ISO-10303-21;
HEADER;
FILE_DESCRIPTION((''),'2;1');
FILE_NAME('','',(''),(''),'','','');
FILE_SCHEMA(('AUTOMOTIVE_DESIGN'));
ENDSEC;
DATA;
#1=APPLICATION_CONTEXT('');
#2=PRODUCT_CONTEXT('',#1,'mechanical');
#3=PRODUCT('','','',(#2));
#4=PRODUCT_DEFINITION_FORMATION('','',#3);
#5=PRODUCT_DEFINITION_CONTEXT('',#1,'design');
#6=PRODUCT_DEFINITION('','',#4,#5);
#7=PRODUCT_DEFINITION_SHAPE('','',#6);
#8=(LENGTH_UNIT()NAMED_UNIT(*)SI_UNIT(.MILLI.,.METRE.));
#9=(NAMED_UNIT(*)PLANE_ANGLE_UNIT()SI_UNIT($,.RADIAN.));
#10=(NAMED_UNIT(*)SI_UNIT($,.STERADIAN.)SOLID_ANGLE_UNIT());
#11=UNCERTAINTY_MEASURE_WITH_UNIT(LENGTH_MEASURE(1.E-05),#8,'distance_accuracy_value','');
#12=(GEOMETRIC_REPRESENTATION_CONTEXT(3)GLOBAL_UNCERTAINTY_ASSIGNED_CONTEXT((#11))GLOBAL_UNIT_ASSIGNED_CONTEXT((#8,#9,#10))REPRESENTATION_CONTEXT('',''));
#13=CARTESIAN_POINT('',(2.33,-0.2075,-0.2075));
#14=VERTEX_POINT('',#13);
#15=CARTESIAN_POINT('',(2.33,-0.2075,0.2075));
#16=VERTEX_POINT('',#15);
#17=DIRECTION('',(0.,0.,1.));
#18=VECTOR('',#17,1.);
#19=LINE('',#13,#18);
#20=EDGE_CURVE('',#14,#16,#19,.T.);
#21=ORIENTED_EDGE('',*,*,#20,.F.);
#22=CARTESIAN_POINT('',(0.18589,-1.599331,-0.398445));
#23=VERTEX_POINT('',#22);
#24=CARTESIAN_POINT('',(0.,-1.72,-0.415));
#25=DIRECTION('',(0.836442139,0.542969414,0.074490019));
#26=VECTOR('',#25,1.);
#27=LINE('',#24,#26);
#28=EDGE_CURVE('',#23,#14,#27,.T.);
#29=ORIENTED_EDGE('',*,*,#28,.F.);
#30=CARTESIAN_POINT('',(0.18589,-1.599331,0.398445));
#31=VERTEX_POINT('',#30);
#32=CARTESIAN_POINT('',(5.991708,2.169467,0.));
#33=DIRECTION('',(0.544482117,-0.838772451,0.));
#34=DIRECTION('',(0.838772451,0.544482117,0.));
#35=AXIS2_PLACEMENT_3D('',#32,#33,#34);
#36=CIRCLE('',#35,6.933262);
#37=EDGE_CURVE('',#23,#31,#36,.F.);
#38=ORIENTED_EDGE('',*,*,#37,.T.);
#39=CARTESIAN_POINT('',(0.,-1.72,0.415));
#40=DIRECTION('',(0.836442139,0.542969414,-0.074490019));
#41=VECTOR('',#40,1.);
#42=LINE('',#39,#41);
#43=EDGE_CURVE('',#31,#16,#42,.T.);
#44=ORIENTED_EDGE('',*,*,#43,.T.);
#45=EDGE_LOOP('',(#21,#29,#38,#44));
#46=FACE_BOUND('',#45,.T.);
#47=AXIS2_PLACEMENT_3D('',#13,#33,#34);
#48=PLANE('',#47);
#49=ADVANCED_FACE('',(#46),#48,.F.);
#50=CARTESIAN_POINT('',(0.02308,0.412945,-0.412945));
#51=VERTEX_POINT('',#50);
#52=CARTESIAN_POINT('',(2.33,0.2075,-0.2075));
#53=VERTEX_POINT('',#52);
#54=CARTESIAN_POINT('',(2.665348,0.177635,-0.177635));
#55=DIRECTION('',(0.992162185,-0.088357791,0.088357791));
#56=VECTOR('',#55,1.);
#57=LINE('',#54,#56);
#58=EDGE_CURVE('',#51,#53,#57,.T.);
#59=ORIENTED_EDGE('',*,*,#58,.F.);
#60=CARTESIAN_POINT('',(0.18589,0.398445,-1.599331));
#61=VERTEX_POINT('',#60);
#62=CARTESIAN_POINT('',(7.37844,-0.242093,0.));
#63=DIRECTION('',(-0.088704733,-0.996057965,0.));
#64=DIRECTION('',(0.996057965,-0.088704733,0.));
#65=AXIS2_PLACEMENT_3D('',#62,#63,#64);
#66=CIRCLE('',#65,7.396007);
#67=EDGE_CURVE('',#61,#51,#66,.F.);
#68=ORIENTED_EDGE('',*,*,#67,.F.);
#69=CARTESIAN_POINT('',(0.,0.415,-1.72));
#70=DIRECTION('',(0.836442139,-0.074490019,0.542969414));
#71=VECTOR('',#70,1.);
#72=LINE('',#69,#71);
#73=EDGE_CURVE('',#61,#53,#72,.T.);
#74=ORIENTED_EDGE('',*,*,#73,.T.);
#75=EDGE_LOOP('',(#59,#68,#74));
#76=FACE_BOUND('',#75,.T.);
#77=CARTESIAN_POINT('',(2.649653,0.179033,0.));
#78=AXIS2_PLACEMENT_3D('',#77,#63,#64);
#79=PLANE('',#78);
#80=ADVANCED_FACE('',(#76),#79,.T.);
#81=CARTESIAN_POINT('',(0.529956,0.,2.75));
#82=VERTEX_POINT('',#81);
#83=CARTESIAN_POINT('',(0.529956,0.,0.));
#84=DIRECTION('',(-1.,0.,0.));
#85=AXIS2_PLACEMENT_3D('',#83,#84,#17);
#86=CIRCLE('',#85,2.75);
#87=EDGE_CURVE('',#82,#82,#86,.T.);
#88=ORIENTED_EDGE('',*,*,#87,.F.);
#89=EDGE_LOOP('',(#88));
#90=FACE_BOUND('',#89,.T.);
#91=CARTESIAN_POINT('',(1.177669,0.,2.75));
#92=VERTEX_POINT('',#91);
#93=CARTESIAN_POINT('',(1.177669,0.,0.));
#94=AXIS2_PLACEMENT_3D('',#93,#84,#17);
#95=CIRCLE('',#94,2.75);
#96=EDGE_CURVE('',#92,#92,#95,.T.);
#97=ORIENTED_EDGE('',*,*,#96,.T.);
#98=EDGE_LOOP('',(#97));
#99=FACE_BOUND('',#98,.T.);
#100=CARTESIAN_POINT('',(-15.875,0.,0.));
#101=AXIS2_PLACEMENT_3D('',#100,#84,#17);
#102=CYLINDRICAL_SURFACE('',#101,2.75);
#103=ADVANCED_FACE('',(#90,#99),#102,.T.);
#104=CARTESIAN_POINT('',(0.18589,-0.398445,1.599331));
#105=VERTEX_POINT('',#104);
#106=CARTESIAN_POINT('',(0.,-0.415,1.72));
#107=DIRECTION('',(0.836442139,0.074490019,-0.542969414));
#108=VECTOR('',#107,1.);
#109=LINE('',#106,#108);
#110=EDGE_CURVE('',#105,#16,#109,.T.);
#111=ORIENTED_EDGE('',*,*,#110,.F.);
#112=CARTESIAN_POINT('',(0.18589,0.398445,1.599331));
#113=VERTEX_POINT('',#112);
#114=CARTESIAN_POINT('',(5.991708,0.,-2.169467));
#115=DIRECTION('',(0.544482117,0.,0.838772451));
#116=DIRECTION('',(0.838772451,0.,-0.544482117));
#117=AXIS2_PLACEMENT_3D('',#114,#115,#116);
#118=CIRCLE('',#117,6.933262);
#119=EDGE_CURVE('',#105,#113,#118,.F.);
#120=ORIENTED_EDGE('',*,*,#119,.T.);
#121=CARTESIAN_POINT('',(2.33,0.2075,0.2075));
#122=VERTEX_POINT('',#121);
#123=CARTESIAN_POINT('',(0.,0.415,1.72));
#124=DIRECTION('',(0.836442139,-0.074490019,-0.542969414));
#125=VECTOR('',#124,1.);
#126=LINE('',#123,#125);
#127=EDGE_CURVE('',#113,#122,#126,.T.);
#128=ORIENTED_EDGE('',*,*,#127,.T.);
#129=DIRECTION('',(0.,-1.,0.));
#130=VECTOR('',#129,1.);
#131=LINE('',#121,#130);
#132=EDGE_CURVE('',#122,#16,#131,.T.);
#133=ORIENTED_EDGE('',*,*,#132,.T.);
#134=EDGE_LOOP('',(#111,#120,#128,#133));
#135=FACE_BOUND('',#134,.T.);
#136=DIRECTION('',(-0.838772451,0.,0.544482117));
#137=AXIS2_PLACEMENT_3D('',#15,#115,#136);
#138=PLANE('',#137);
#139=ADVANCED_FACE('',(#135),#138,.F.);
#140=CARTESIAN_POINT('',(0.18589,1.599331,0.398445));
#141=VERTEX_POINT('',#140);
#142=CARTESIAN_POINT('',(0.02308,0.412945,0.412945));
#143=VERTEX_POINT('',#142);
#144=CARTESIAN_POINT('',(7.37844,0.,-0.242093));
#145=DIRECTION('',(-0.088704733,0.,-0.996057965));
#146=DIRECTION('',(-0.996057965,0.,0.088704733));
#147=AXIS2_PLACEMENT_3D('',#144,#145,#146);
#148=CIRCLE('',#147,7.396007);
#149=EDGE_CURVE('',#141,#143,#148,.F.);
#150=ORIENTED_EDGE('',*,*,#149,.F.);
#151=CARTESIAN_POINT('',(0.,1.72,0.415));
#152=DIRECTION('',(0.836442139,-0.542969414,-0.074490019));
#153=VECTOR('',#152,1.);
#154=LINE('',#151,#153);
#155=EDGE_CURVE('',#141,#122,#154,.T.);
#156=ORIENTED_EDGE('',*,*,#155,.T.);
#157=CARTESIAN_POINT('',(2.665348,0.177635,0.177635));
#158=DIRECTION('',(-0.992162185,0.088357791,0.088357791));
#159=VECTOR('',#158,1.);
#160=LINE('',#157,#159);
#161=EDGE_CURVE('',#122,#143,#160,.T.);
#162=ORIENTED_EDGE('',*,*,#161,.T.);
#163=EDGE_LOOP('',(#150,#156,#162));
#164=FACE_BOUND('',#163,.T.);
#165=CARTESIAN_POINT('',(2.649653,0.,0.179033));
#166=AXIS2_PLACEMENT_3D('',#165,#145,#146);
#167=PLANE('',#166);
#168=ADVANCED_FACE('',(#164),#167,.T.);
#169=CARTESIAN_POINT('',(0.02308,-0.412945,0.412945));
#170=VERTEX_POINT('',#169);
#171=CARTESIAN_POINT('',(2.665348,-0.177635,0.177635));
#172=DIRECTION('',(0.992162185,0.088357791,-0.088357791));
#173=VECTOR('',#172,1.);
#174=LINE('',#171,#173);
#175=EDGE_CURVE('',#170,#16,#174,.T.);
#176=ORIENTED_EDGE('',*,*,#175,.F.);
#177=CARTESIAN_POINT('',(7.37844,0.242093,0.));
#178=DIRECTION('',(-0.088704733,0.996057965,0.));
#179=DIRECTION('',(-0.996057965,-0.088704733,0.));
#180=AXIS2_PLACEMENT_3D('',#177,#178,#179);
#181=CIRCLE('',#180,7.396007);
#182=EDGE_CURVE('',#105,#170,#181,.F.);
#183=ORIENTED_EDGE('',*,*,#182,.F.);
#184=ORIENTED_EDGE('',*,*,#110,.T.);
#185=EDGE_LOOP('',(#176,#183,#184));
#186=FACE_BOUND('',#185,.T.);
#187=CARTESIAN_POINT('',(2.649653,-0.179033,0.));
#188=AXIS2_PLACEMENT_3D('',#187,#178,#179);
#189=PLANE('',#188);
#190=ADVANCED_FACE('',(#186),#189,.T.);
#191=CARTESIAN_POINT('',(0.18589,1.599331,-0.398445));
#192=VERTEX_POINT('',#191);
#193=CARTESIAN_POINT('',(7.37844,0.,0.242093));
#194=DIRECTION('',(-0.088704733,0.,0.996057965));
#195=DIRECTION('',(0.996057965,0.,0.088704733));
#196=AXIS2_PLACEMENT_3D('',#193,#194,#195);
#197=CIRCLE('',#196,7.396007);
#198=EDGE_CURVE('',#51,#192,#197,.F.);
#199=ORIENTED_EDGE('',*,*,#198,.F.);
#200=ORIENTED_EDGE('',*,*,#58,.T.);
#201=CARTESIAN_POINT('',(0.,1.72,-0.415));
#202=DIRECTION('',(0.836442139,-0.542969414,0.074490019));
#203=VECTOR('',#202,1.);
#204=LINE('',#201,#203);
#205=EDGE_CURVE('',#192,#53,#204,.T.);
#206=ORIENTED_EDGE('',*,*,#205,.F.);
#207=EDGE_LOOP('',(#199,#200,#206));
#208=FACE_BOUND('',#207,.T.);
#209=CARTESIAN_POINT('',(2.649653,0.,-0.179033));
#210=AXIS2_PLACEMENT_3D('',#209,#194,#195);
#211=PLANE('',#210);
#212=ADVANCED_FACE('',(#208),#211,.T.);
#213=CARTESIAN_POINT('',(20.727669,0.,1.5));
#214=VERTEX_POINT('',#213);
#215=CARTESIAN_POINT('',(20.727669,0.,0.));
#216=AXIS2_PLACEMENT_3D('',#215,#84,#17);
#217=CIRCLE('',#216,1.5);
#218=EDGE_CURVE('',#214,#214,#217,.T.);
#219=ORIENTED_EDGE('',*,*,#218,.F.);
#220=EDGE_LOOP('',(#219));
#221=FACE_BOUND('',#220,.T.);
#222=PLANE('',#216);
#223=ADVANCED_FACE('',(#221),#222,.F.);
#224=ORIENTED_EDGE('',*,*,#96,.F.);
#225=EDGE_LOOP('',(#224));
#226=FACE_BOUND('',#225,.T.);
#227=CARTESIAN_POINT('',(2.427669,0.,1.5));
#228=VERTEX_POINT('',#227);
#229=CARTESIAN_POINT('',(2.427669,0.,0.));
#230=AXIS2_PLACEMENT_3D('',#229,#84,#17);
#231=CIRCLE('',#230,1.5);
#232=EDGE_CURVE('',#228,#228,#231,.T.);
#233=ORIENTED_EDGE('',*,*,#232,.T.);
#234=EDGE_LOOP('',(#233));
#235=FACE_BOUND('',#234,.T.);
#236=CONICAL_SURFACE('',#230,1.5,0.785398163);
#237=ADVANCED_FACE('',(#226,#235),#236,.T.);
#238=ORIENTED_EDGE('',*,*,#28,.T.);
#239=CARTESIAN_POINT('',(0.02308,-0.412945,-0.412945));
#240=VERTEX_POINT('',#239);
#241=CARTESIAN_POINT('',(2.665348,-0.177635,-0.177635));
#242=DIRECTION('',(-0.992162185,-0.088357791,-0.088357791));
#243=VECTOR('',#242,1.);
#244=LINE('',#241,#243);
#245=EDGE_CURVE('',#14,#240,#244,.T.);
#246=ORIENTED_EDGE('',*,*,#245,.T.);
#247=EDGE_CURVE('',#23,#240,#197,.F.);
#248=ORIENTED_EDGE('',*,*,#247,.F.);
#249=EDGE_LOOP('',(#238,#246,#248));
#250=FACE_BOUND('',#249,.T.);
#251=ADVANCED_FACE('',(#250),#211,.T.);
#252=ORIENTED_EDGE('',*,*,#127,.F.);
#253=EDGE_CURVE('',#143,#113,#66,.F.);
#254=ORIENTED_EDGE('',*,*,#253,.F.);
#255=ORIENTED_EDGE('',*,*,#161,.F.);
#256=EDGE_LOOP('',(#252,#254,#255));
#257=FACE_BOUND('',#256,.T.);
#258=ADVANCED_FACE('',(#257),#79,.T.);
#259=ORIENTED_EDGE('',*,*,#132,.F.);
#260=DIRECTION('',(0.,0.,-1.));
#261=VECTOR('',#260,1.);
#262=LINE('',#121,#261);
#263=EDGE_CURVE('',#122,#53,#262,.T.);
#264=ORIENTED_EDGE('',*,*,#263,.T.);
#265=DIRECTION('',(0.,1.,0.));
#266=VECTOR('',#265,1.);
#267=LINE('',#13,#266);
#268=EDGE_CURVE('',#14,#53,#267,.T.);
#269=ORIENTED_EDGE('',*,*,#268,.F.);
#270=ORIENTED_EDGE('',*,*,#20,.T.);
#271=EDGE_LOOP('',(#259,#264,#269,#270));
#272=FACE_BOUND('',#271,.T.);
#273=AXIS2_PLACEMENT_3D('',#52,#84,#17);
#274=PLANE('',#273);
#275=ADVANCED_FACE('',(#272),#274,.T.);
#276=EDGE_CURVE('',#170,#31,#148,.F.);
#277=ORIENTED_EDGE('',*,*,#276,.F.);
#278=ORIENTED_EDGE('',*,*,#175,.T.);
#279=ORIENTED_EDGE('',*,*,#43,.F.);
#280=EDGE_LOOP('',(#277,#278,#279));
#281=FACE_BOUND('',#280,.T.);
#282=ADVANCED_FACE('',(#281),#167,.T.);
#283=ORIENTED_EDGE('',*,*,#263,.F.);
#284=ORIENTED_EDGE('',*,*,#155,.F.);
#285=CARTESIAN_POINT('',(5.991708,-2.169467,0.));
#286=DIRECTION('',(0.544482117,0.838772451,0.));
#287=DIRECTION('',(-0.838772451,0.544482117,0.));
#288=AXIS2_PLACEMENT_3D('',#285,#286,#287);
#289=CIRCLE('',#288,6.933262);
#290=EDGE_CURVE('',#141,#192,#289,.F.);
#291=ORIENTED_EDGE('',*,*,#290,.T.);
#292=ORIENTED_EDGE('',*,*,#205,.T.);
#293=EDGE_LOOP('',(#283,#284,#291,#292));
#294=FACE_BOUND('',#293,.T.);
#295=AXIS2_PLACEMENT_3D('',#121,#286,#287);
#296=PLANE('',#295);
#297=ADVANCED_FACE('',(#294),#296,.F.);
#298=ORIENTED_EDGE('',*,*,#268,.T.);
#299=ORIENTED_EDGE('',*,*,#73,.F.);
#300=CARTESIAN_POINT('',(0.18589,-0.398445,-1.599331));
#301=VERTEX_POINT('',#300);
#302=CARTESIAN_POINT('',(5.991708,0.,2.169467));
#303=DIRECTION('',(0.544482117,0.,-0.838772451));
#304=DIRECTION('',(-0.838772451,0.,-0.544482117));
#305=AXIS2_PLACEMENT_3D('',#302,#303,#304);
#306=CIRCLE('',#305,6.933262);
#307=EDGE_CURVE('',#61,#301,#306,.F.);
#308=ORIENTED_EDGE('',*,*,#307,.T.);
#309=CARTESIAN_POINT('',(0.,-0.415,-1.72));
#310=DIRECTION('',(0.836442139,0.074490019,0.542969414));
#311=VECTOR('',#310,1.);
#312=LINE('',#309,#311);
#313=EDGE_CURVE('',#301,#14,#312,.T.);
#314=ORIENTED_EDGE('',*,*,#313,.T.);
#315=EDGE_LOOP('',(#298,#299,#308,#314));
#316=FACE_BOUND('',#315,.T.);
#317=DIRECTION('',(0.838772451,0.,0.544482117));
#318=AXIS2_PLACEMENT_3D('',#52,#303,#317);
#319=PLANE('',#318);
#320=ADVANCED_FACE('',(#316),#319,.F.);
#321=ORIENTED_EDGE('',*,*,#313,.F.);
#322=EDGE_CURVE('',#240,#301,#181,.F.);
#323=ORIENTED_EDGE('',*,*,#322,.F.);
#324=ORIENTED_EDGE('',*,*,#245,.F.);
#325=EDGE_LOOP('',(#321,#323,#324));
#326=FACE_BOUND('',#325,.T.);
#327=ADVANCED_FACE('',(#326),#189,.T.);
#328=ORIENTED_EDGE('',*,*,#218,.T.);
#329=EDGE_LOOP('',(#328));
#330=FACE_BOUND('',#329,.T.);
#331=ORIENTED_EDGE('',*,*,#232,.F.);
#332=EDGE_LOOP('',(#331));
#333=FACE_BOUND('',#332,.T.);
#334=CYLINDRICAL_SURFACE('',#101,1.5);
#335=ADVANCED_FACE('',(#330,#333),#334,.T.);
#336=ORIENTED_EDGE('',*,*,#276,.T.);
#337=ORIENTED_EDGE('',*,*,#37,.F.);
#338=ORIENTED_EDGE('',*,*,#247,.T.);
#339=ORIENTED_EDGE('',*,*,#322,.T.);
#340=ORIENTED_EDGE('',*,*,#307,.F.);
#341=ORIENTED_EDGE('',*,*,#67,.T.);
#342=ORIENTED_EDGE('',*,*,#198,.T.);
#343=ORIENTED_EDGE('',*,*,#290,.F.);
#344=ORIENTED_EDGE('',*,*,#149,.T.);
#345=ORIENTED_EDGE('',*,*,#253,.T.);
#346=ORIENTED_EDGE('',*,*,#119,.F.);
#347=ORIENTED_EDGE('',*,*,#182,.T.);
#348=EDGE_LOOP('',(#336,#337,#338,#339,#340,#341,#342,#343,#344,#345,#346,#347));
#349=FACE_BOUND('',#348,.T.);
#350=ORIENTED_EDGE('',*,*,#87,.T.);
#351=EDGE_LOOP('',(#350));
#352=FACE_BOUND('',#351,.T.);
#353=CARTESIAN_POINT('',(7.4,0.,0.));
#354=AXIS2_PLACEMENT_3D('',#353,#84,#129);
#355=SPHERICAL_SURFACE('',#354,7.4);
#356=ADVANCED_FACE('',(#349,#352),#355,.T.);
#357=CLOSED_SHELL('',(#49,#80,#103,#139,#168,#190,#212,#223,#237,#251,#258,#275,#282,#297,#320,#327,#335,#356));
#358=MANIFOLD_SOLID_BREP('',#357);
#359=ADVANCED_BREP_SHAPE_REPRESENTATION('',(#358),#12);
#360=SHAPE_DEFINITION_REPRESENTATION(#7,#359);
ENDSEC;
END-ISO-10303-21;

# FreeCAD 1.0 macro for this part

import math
import FreeCAD as App
import Part
import Sketcher

V = App.Vector
Q = App.Units.Quantity


def add_polygon(sketch, points):
    """Adds a closed chain of lines whose ends are joined by coincident constraints."""
    first, n = sketch.GeometryCount, len(points)
    for a, b in zip(points, points[1:] + points[:1]):
        sketch.addGeometry(Part.LineSegment(App.Vector(*a, 0), App.Vector(*b, 0)), False)
    for i in range(n):
        sketch.addConstraint(Sketcher.Constraint("Coincident", first + i, 2, first + (i + 1) % n, 1))

doc = App.newDocument("Part")
body = doc.addObject("PartDesign::Body", "Body")

sketch1 = body.newObject("Sketcher::SketchObject", "Sketch")
sketch1.AttachmentSupport = (doc.getObject("XY_Plane"), [""])
sketch1.MapMode = "FlatFace"
sketch1.addGeometry(Part.LineSegment(V(0, 0, 0), V(20.727669, 0, 0)), False)
sketch1.addGeometry(Part.LineSegment(V(20.727669, 0, 0), V(20.727669, 1.5, 0)), False)
sketch1.addGeometry(Part.LineSegment(V(20.727669, 1.5, 0), V(2.427669, 1.5, 0)), False)
sketch1.addGeometry(Part.LineSegment(V(2.427669, 1.5, 0), V(1.177669, 2.75, 0)), False)
sketch1.addGeometry(Part.LineSegment(V(1.177669, 2.75, 0), V(0.529956, 2.75, 0)), False)
sketch1.addGeometry(Part.ArcOfCircle(Part.Circle(V(7.4, 0, 0), V(0, 0, 1), 7.4), math.radians(158.184338), math.radians(180)), False)
sketch1.addConstraint(Sketcher.Constraint("Coincident", 0, 2, 1, 1))
sketch1.addConstraint(Sketcher.Constraint("Coincident", 1, 2, 2, 1))
sketch1.addConstraint(Sketcher.Constraint("Coincident", 2, 2, 3, 1))
sketch1.addConstraint(Sketcher.Constraint("Coincident", 3, 2, 4, 1))
sketch1.addConstraint(Sketcher.Constraint("Coincident", 4, 2, 5, 1))
sketch1.addConstraint(Sketcher.Constraint("Coincident", 5, 2, 0, 1))
sketch1.addConstraint(Sketcher.Constraint("Horizontal", 0))
sketch1.addConstraint(Sketcher.Constraint("Vertical", 1))
sketch1.addConstraint(Sketcher.Constraint("Horizontal", 2))
sketch1.addConstraint(Sketcher.Constraint("Horizontal", 4))
sketch1.addConstraint(Sketcher.Constraint("Coincident", 5, 2, -1, 1))
sketch1.addConstraint(Sketcher.Constraint("PointOnObject", 5, 3, -1))
sketch1.addConstraint(Sketcher.Constraint("Radius", 5, 7.4))
sketch1.addConstraint(Sketcher.Constraint("Angle", 3, Q("135 deg")))
sketch1.addConstraint(Sketcher.Constraint("DistanceX", 2, 2, 2, 1, 18.3))
sketch1.addConstraint(Sketcher.Constraint("DistanceY", 1, 1, 1, 2, 1.5))
sketch1.addConstraint(Sketcher.Constraint("DistanceY", -1, 1, 3, 2, 2.75))
sketch1.addConstraint(Sketcher.Constraint("DistanceX", 0, 1, 0, 2, 20.727669))
revolution = body.newObject("PartDesign::Revolution", "Revolution")
revolution.Profile = sketch1
revolution.ReferenceAxis = (sketch1, ["H_Axis"])
revolution.Angle = 360

sketch2 = body.newObject("Sketcher::SketchObject", "Sketch001")
sketch2.AttachmentSupport = (doc.getObject("YZ_Plane"), [""])
sketch2.MapMode = "FlatFace"
add_polygon(sketch2, [(-1.72, 0.415), (-1.72, -0.415), (1.72, -0.415), (1.72, 0.415)])
sketch2.addConstraint(Sketcher.Constraint("Vertical", 0))
sketch2.addConstraint(Sketcher.Constraint("Horizontal", 1))
sketch2.addConstraint(Sketcher.Constraint("Vertical", 2))
sketch2.addConstraint(Sketcher.Constraint("Horizontal", 3))
sketch2.addConstraint(Sketcher.Constraint("Symmetric", 0, 2, 2, 2, -1, 1))
sketch2.addConstraint(Sketcher.Constraint("DistanceX", 1, 1, 1, 2, 3.44))
sketch2.addConstraint(Sketcher.Constraint("DistanceY", 0, 2, 0, 1, 0.83))

sketch3 = body.newObject("Sketcher::SketchObject", "Sketch002")
sketch3.AttachmentSupport = (doc.getObject("YZ_Plane"), [""])
sketch3.MapMode = "FlatFace"
sketch3.AttachmentOffset = App.Placement(V(0, 0, 2.33), App.Rotation())
add_polygon(sketch3, [(-0.2075, 0.2075), (-0.2075, -0.2075), (0.2075, -0.2075), (0.2075, 0.2075)])
sketch3.addConstraint(Sketcher.Constraint("Vertical", 0))
sketch3.addConstraint(Sketcher.Constraint("Horizontal", 1))
sketch3.addConstraint(Sketcher.Constraint("Vertical", 2))
sketch3.addConstraint(Sketcher.Constraint("Horizontal", 3))
sketch3.addConstraint(Sketcher.Constraint("Symmetric", 0, 2, 2, 2, -1, 1))
sketch3.addConstraint(Sketcher.Constraint("Equal", 3, 0))
sketch3.addConstraint(Sketcher.Constraint("DistanceX", 1, 1, 1, 2, 0.415))

subtractiveloft = body.newObject("PartDesign::SubtractiveLoft", "SubtractiveLoft")
subtractiveloft.Profile = sketch2
subtractiveloft.Sections = [sketch3]
doc.recompute()

polarpattern = body.newObject("PartDesign::PolarPattern", "PolarPattern")
polarpattern.Originals = [subtractiveloft]
polarpattern.Axis = (doc.getObject("X_Axis"), [""])
polarpattern.Angle = 90
polarpattern.Occurrences = 2
body.Tip = polarpattern

doc.recompute()
